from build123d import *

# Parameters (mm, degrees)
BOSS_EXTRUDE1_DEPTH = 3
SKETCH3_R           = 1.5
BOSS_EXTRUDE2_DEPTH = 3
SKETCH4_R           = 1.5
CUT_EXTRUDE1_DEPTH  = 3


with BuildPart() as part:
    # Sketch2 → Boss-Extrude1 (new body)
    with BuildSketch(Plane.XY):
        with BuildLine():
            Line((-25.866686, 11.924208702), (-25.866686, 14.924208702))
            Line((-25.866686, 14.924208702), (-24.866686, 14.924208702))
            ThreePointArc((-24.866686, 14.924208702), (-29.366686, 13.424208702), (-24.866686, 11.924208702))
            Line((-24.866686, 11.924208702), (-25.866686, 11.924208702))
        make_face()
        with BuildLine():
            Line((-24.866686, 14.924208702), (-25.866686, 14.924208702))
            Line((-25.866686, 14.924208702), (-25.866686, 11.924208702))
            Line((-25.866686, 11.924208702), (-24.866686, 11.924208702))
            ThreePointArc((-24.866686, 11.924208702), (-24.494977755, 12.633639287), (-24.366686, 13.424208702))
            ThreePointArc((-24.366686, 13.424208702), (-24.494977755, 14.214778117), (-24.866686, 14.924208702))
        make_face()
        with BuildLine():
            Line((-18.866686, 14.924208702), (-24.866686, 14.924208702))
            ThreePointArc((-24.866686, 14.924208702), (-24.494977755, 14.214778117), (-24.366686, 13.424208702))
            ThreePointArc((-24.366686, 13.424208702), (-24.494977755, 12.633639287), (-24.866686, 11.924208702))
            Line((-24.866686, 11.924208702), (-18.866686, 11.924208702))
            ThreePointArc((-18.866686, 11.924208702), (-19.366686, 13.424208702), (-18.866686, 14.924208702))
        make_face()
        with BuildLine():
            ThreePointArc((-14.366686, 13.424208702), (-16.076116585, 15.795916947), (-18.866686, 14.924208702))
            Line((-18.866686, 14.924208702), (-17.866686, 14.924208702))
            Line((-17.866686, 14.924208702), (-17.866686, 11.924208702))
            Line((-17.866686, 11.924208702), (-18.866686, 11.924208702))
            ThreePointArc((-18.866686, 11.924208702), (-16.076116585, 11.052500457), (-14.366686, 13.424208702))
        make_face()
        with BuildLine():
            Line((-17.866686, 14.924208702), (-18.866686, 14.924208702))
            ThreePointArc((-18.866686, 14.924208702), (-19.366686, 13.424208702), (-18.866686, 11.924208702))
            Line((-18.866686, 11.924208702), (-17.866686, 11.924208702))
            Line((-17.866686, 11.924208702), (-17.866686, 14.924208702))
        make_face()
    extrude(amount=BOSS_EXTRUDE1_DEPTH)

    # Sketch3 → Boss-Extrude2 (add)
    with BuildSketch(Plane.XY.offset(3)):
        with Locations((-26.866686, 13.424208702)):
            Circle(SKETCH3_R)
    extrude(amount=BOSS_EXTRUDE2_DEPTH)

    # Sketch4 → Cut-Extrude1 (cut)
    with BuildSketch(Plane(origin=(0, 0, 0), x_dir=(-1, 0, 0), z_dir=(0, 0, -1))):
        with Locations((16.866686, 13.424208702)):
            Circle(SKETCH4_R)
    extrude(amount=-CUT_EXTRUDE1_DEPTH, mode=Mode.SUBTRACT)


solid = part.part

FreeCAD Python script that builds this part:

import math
import FreeCAD as App
import Part
import Sketcher
from FreeCAD import Vector
Q = App.Units.Quantity

doc = App.newDocument("Part")
body = doc.addObject("PartDesign::Body", "Body")

# Sketch on XY plane
sketch1 = doc.addObject("Sketcher::SketchObject", "Sketch")
body.addObject(sketch1)
sketch1.AttachmentSupport = (doc.XY_Plane, [""])
sketch1.MapMode = "FlatFace"
sketch1.addGeometry([
    Part.ArcOfCircle(Part.Circle(Vector(-26.9, 13.4, 0), Vector(0, 0, 1), 2.5), math.radians(37), math.radians(323)),  # 0
    Part.LineSegment(Vector(-24.9, 11.9, 0), Vector(-18.9, 11.9, 0)),  # 1
    Part.ArcOfCircle(Part.Circle(Vector(-16.9, 13.4, 0), Vector(0, 0, 1), 2.5), math.radians(-143), math.radians(0)),  # 2
    Part.ArcOfCircle(Part.Circle(Vector(-16.9, 13.4, 0), Vector(0, 0, 1), 2.5), math.radians(0), math.radians(143)),  # 3
    Part.LineSegment(Vector(-18.9, 14.9, 0), Vector(-24.9, 14.9, 0)),  # 4
], False)
sketch1.addConstraint([
    Sketcher.Constraint("Coincident", 0, 2, 1, 1),
    Sketcher.Constraint("Coincident", 1, 2, 2, 1),
    Sketcher.Constraint("Tangent", 2, 2, 3, 1),
    Sketcher.Constraint("Coincident", 3, 2, 4, 1),
    Sketcher.Constraint("Coincident", 4, 2, 0, 1),
    Sketcher.Constraint("Horizontal", 1),
    Sketcher.Constraint("Horizontal", 4),
    Sketcher.Constraint("Equal", 0, 2),
    Sketcher.Constraint("Equal", 2, 3),
    Sketcher.Constraint("Horizontal", 0, 3, 2, 3),
    Sketcher.Constraint("Horizontal", 3, 3, 2, 2),
    Sketcher.Constraint("Vertical", 1, 2, 3, 2),
    Sketcher.Constraint("Radius", 0, Q("2.5 mm")),
    Sketcher.Constraint("DistanceX", 1, 1, 1, 2, Q("6 mm")),
    Sketcher.Constraint("DistanceX", 0, 3, 2, 3, Q("10 mm")),
    Sketcher.Constraint("DistanceY", -1, 1, 0, 3, Q("13.424209 mm")),
    Sketcher.Constraint("DistanceX", 0, 3, -1, 1, Q("26.866686 mm")),
])
pad1 = doc.addObject("PartDesign::Pad", "Pad")
body.addObject(pad1)
pad1.Profile = sketch1
pad1.Length = 3

# Sketch on XY plane
sketch2 = doc.addObject("Sketcher::SketchObject", "Sketch001")
body.addObject(sketch2)
sketch2.AttachmentSupport = (doc.XY_Plane, [""])
sketch2.MapMode = "FlatFace"
sketch2.AttachmentOffset = App.Placement(Vector(0, 0, 3), App.Rotation())
sketch2.addGeometry(Part.Circle(Vector(-26.9, 13.4, 0), Vector(0, 0, 1), 1.5), False)
sketch2.addConstraint([
    Sketcher.Constraint("Diameter", 0, Q("3 mm")),
    Sketcher.Constraint("DistanceY", -1, 1, 0, 3, Q("13.424209 mm")),
    Sketcher.Constraint("DistanceX", 0, 3, -1, 1, Q("26.866686 mm")),
])
pad2 = doc.addObject("PartDesign::Pad", "Pad001")
body.addObject(pad2)
pad2.Profile = sketch2
pad2.Length = 3

# Sketch on XY plane
sketch3 = doc.addObject("Sketcher::SketchObject", "Sketch002")
body.addObject(sketch3)
sketch3.AttachmentSupport = (doc.XY_Plane, [""])
sketch3.MapMode = "FlatFace"
sketch3.addGeometry(Part.Circle(Vector(-16.9, 13.4, 0), Vector(0, 0, 1), 1.5), False)
sketch3.addConstraint([
    Sketcher.Constraint("Diameter", 0, Q("3 mm")),
    Sketcher.Constraint("DistanceY", -1, 1, 0, 3, Q("13.424209 mm")),
    Sketcher.Constraint("DistanceX", 0, 3, -1, 1, Q("16.866686 mm")),
])
pocket1 = doc.addObject("PartDesign::Pocket", "Pocket")
body.addObject(pocket1)
pocket1.Profile = sketch3
pocket1.Length = 3
pocket1.Reversed = True

doc.recompute()
